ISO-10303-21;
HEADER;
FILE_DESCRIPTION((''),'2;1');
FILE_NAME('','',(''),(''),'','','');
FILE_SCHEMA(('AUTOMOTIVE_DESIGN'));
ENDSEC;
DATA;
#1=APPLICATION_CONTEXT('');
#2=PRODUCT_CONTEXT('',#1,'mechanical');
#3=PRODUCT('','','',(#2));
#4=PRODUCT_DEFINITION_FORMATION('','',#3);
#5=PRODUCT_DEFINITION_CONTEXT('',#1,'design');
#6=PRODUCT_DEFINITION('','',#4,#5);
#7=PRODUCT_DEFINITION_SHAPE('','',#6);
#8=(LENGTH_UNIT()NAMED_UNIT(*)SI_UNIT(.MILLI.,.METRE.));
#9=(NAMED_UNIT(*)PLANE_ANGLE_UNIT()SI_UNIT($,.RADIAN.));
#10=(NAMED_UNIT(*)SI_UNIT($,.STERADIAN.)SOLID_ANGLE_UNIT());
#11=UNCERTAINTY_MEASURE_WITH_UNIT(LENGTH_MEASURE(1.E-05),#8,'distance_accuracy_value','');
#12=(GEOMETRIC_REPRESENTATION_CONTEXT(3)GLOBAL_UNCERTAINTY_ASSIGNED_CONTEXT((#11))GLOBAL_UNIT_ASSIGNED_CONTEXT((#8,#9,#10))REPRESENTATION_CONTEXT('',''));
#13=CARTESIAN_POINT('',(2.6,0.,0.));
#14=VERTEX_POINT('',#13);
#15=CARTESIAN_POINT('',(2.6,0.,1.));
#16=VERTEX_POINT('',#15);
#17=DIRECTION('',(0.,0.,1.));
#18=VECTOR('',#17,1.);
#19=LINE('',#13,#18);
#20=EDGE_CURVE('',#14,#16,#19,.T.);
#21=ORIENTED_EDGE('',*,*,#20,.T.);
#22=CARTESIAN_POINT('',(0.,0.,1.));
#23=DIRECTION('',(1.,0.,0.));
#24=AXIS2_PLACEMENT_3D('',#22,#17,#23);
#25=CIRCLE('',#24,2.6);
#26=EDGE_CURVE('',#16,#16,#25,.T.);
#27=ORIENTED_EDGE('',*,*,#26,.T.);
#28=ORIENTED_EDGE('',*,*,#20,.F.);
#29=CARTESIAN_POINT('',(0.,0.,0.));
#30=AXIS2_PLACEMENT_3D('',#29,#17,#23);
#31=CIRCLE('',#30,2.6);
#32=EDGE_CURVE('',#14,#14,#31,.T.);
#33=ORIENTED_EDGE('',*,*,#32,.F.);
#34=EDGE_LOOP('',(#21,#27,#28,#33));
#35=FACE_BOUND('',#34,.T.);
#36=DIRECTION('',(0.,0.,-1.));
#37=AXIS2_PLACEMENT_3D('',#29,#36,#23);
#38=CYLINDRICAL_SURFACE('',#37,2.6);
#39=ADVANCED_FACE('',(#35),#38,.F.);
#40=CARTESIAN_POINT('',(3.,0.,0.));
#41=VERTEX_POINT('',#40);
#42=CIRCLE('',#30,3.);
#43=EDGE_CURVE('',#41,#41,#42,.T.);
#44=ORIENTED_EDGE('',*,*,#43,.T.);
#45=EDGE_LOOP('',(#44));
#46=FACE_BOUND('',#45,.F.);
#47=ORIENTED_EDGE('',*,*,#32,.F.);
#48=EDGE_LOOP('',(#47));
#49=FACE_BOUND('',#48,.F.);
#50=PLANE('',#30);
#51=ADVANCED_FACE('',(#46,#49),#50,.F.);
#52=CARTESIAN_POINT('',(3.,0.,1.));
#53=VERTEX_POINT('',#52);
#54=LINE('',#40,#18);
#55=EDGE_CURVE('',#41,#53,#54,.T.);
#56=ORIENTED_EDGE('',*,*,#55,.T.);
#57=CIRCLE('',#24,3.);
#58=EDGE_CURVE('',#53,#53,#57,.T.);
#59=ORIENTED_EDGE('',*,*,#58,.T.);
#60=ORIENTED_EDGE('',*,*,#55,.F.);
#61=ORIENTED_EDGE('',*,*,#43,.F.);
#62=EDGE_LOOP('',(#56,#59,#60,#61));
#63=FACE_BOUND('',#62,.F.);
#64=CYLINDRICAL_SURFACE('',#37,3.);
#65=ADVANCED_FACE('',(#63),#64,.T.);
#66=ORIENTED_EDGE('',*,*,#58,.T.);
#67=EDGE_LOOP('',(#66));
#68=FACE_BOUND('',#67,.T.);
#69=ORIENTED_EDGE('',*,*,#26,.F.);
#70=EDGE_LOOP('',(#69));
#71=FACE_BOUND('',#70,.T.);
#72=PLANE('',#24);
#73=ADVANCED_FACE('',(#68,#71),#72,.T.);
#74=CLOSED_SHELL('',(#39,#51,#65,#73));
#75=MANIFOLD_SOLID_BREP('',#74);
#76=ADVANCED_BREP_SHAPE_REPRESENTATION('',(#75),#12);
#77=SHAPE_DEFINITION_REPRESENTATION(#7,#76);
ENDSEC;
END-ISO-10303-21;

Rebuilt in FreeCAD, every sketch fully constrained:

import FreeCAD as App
import Part
import Sketcher

V = App.Vector

doc = App.newDocument("Part")
body = doc.addObject("PartDesign::Body", "Body")

# Sketch on XY plane
sketch1 = body.newObject("Sketcher::SketchObject", "Sketch")
sketch1.AttachmentSupport = (doc.getObject("XY_Plane"), [""])
sketch1.MapMode = "FlatFace"
sketch1.addGeometry([
    Part.Circle(V(0, 0, 0), V(0, 0, 1), 3),
    Part.Circle(V(0, 0, 0), V(0, 0, 1), 2.6),
], False)
sketch1.addConstraint([
    Sketcher.Constraint("Coincident", 0, 3, -1, 1),
    Sketcher.Constraint("Coincident", 1, 3, -1, 1),
    Sketcher.Constraint("Diameter", 0, 6.0),
    Sketcher.Constraint("Diameter", 1, 5.2),
])
pad1 = body.newObject("PartDesign::Pad", "Pad")
pad1.Profile = sketch1
pad1.Length = 1

doc.recompute()
